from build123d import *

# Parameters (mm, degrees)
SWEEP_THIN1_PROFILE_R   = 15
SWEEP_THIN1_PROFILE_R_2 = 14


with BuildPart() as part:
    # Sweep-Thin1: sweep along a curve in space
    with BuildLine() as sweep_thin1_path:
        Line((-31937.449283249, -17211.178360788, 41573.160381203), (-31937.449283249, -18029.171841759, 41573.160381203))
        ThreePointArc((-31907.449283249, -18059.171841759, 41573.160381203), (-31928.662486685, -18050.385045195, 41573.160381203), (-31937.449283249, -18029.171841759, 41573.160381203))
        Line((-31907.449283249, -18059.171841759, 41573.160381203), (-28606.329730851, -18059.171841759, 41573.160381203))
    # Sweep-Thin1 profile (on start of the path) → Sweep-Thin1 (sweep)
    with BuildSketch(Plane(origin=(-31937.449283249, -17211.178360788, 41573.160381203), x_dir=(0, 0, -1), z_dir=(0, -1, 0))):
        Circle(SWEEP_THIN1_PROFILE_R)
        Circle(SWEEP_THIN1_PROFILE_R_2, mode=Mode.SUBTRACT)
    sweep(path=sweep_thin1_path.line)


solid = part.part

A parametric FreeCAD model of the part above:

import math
import FreeCAD as App
import Part
import Sketcher

V = App.Vector
Q = App.Units.Quantity

doc = App.newDocument("Part")
body = doc.addObject("PartDesign::Body", "Body")

# Sketch on XZ plane
sketch1 = body.newObject("Sketcher::SketchObject", "Sketch")
sketch1.AttachmentSupport = (doc.getObject("XZ_Plane"), [""])
sketch1.MapMode = "FlatFace"
sketch1.AttachmentOffset = App.Placement(V(0, 0, 17211.178361), App.Rotation())
sketch1.addGeometry([
    Part.Circle(V(-31937, 41573, 0), V(0, 0, 1), 15),
    Part.Circle(V(-31937, 41573, 0), V(0, 0, 1), 14),
], False)
sketch1.addConstraint([
    Sketcher.Constraint("Coincident", 1, 3, 0, 3),
    Sketcher.Constraint("Diameter", 0, Q("30 mm")),
    Sketcher.Constraint("Diameter", 1, Q("28 mm")),
    Sketcher.Constraint("DistanceY", -1, 1, 0, 3, Q("41573.160381 mm")),
    Sketcher.Constraint("DistanceX", 0, 3, -1, 1, Q("31937.449283 mm")),
])

# Sketch on XY plane
sketch2 = body.newObject("Sketcher::SketchObject", "Sketch001")
sketch2.AttachmentSupport = (doc.getObject("XY_Plane"), [""])
sketch2.MapMode = "FlatFace"
sketch2.AttachmentOffset = App.Placement(V(0, 0, 41573.160381), App.Rotation())
sketch2.addGeometry([
    Part.LineSegment(V(-31937, -17211, 0), V(-31937, -18029, 0)),
    Part.ArcOfCircle(Part.Circle(V(-31907, -18029, 0), V(0, 0, 1), 30), math.radians(180), math.radians(270)),
    Part.LineSegment(V(-31907, -18059, 0), V(-28606, -18059, 0)),
], False)
sketch2.addConstraint([
    Sketcher.Constraint("Tangent", 0, 2, 1, 1),
    Sketcher.Constraint("Tangent", 1, 2, 2, 1),
    Sketcher.Constraint("Vertical", 0),
    Sketcher.Constraint("Horizontal", 2),
    Sketcher.Constraint("Radius", 1, Q("30 mm")),
    Sketcher.Constraint("DistanceY", 0, 2, 0, 1, Q("817.993481 mm")),
    Sketcher.Constraint("DistanceX", 2, 1, 2, 2, Q("3301.119552 mm")),
    Sketcher.Constraint("DistanceY", 1, 3, -1, 1, Q("18029.171842 mm")),
    Sketcher.Constraint("DistanceX", 2, 2, -1, 1, Q("28606.329731 mm")),
])
doc.recompute()

additivepipe = body.newObject("PartDesign::AdditivePipe", "AdditivePipe")
additivepipe.Profile = sketch1
additivepipe.Spine = (sketch2, ["Edge1", "Edge2", "Edge3"])

doc.recompute()
